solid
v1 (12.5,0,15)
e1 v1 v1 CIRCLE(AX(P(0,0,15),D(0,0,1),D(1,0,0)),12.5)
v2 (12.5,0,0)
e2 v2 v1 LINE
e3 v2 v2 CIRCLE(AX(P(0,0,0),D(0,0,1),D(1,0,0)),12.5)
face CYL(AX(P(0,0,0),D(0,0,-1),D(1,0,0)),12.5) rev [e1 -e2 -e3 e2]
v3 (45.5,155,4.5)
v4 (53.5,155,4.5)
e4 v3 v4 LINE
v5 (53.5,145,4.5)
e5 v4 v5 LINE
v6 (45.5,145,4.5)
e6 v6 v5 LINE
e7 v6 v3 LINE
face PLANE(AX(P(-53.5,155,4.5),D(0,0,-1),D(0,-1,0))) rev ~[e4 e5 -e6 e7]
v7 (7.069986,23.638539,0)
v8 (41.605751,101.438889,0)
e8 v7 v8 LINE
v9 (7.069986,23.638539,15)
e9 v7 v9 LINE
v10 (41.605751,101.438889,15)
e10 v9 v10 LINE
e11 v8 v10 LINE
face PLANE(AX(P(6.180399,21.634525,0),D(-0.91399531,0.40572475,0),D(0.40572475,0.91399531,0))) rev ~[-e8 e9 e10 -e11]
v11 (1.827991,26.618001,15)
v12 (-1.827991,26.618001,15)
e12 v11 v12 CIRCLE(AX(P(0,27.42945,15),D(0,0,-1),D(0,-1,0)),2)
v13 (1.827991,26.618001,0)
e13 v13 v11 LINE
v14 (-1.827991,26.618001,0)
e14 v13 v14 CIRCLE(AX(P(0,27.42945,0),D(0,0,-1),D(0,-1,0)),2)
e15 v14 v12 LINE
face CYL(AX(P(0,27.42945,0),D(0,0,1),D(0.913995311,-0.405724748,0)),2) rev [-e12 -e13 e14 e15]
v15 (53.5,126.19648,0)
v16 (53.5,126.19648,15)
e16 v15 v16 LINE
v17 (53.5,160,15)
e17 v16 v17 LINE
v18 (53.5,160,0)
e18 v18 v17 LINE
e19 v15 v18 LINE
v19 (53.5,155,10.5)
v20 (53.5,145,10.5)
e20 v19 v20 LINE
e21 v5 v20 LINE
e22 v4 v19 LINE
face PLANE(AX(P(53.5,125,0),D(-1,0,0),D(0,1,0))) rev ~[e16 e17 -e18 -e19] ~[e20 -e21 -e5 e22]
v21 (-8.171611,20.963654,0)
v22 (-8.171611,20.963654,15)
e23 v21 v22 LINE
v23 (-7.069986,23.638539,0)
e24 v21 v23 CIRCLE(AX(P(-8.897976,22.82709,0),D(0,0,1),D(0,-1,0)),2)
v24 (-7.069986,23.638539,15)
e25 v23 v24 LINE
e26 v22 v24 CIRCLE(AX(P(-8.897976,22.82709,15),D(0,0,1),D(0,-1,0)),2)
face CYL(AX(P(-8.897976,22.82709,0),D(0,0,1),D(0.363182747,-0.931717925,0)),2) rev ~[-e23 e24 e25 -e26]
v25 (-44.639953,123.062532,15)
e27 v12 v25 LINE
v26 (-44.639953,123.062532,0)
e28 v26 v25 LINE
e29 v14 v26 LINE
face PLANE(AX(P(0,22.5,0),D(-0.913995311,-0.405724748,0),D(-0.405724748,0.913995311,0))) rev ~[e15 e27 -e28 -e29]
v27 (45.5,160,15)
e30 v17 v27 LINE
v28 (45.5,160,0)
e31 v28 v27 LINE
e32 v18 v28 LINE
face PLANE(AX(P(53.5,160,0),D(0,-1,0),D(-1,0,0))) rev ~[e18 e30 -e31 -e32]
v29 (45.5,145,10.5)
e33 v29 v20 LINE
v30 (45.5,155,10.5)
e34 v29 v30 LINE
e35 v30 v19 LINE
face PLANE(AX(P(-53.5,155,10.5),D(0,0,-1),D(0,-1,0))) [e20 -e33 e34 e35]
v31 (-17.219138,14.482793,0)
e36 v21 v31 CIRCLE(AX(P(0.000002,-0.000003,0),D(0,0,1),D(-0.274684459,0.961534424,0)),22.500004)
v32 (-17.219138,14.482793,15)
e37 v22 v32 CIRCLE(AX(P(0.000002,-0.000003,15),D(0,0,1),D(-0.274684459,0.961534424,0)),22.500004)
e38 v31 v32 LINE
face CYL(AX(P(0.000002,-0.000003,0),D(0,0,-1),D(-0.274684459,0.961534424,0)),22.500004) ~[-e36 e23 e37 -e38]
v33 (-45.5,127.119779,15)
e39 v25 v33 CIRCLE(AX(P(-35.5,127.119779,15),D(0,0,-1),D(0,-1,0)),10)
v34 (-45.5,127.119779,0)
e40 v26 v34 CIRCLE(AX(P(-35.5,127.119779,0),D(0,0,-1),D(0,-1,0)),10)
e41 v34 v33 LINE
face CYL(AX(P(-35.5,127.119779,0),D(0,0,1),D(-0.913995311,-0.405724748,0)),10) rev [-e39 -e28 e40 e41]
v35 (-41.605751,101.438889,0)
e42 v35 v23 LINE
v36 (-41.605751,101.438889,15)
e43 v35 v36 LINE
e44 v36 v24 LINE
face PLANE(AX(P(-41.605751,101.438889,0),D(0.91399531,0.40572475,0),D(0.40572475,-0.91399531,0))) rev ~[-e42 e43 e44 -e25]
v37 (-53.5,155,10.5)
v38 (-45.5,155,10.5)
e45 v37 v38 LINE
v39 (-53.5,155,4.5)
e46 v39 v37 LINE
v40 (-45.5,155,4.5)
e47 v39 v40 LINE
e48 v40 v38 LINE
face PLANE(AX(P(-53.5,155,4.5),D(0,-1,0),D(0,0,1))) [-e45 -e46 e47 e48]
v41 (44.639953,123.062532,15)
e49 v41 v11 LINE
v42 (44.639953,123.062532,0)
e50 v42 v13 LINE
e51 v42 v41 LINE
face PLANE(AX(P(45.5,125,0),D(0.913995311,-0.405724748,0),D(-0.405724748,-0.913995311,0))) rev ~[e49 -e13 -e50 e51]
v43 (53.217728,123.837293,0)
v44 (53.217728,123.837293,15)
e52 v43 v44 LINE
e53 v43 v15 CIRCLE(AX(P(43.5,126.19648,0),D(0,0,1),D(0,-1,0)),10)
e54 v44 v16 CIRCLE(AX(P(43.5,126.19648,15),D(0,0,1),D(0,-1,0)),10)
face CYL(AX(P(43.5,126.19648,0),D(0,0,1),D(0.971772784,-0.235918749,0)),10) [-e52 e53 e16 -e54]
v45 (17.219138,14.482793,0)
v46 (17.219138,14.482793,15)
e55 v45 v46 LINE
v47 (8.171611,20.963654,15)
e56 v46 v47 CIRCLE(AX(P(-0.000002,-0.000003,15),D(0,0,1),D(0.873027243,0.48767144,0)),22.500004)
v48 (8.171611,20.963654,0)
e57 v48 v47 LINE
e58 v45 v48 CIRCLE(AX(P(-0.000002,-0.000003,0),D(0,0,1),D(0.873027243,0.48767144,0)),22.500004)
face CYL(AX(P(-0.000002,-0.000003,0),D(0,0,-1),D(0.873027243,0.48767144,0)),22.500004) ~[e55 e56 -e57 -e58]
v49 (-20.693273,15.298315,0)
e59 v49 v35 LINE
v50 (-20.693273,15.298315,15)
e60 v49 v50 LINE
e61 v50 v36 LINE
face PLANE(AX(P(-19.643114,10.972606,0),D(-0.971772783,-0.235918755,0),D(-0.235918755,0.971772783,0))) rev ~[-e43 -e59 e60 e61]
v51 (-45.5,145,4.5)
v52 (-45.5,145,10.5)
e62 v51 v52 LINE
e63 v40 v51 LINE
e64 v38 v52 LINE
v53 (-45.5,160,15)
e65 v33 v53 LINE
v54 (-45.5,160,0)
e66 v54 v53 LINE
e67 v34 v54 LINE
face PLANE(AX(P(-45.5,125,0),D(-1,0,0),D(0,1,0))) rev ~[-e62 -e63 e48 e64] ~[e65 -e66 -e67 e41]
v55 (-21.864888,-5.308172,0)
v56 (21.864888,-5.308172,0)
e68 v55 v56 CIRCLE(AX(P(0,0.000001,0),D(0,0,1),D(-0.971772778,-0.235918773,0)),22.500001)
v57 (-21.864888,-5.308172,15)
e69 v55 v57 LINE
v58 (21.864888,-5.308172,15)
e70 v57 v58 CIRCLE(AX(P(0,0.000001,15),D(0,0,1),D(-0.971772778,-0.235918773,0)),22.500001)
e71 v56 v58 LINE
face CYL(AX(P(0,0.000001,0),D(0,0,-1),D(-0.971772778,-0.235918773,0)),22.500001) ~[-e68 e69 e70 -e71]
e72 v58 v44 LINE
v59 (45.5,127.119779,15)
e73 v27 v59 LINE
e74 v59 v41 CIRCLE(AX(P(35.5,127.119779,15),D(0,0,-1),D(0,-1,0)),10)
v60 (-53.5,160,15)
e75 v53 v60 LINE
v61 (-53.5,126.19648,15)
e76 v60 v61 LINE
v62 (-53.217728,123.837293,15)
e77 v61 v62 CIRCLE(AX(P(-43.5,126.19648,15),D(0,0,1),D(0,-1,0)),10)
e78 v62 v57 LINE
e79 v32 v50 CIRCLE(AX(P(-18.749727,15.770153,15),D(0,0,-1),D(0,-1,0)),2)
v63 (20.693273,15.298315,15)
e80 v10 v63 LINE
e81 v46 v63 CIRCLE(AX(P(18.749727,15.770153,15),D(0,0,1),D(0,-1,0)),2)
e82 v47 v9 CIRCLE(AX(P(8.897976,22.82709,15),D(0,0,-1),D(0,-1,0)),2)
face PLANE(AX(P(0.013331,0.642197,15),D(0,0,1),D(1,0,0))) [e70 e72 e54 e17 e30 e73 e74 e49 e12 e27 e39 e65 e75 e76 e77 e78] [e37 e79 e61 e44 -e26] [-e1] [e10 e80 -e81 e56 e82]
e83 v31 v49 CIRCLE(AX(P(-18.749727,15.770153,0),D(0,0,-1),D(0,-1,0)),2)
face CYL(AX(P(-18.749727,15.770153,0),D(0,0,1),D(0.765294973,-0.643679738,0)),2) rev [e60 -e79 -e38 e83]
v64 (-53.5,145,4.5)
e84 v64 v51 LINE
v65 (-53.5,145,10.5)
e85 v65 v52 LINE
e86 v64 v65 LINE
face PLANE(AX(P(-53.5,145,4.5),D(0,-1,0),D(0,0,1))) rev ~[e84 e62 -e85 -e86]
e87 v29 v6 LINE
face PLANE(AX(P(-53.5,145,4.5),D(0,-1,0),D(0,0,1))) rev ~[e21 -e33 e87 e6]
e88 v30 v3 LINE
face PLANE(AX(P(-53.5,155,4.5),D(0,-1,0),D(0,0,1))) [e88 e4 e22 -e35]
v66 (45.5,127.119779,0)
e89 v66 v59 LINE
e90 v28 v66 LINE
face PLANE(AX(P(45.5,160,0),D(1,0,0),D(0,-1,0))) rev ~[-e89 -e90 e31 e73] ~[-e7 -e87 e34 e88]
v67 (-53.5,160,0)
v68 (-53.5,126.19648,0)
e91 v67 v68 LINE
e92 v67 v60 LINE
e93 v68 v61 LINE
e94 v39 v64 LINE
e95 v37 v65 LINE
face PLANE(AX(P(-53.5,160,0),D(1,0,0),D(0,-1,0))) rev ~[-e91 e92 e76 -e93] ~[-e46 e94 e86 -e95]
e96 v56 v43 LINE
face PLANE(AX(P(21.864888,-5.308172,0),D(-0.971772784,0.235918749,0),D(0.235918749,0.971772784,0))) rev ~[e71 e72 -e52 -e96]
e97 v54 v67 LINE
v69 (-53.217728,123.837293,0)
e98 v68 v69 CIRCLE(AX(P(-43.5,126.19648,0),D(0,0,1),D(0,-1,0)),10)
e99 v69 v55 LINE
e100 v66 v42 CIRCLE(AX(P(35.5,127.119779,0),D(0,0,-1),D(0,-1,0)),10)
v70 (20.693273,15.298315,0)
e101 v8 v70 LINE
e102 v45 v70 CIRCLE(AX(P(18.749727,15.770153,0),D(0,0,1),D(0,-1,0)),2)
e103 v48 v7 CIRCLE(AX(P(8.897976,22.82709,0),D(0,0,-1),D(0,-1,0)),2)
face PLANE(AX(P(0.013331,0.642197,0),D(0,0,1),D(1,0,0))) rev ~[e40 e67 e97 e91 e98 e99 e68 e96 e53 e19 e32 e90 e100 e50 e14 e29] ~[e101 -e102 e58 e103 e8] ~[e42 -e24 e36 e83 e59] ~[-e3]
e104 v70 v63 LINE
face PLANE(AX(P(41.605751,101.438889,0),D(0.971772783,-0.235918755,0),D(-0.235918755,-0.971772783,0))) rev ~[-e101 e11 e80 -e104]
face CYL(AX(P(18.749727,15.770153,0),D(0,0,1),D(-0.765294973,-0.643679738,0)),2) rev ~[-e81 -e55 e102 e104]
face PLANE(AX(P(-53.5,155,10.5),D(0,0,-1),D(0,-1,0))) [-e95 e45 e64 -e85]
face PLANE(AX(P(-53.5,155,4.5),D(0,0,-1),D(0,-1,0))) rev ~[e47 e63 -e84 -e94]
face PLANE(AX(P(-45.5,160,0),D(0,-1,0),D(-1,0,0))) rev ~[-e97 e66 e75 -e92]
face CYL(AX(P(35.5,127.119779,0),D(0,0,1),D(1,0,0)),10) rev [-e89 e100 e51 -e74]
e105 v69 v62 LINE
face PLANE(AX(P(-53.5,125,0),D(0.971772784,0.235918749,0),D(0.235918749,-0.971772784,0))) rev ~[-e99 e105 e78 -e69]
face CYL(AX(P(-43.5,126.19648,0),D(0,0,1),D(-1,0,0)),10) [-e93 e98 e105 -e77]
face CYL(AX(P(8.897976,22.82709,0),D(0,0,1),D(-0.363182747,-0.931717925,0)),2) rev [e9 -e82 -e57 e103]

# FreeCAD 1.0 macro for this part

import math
import FreeCAD as App
import Part
import Sketcher
from FreeCAD import Vector


def edges_at(feature, points):
    """Names of the edges that pass closest to the given points."""
    edges = feature.Shape.Edges
    near = lambda p: min(range(len(edges)), key=lambda i: edges[i].distToShape(Part.Vertex(*p))[0])
    return sorted({f"Edge{near(p) + 1}" for p in points})


def add_polygon(sketch, points):
    """Adds a closed chain of lines whose ends are joined by coincident constraints."""
    first, n = sketch.GeometryCount, len(points)
    for a, b in zip(points, points[1:] + points[:1]):
        sketch.addGeometry(Part.LineSegment(App.Vector(*a, 0), App.Vector(*b, 0)), False)
    for i in range(n):
        sketch.addConstraint(Sketcher.Constraint("Coincident", first + i, 2, first + (i + 1) % n, 1))

doc = App.newDocument("Part")
body = doc.addObject("PartDesign::Body", "Body")

# Sketch on XY plane
sketch1 = body.newObject("Sketcher::SketchObject", "Sketch")
sketch1.AttachmentSupport = (doc.getObject("XY_Plane"), [""])
sketch1.MapMode = "FlatFace"
sketch1.addGeometry(Part.ArcOfCircle(Part.Circle(Vector(0, 0, 0), Vector(0, 0, 1), 23), math.radians(-166), math.radians(-14)), False)
sketch1.addGeometry(Part.LineSegment(Vector(22, -5, 0), Vector(54, 125, 0)), False)
sketch1.addGeometry(Part.LineSegment(Vector(54, 125, 0), Vector(54, 160, 0)), False)
sketch1.addGeometry(Part.LineSegment(Vector(54, 160, 0), Vector(46, 160, 0)), False)
sketch1.addGeometry(Part.LineSegment(Vector(46, 160, 0), Vector(46, 125, 0)), False)
sketch1.addGeometry(Part.LineSegment(Vector(46, 125, 0), Vector(0, 22, 0)), False)
sketch1.addGeometry(Part.LineSegment(Vector(0, 22, 0), Vector(-46, 125, 0)), False)
sketch1.addGeometry(Part.LineSegment(Vector(-46, 125, 0), Vector(-46, 160, 0)), False)
sketch1.addGeometry(Part.LineSegment(Vector(-46, 160, 0), Vector(-54, 160, 0)), False)
sketch1.addGeometry(Part.LineSegment(Vector(-54, 160, 0), Vector(-54, 125, 0)), False)
sketch1.addGeometry(Part.LineSegment(Vector(-54, 125, 0), Vector(-22, -5, 0)), False)
sketch1.addGeometry(Part.ArcOfCircle(Part.Circle(Vector(0, 0, 0), Vector(0, 0, 1), 23), math.radians(106), math.radians(151)), False)
sketch1.addGeometry(Part.LineSegment(Vector(-20, 11, 0), Vector(-42, 101, 0)), False)
sketch1.addGeometry(Part.LineSegment(Vector(-42, 101, 0), Vector(-6, 22, 0)), False)
sketch1.addGeometry(Part.ArcOfCircle(Part.Circle(Vector(0, 0, 0), Vector(0, 0, 1), 23), math.radians(29), math.radians(74)), False)
sketch1.addGeometry(Part.LineSegment(Vector(6, 22, 0), Vector(42, 101, 0)), False)
sketch1.addGeometry(Part.LineSegment(Vector(42, 101, 0), Vector(20, 11, 0)), False)
sketch1.addGeometry(Part.Circle(Vector(0, 0, 0), Vector(0, 0, 1), 12), False)
sketch1.addConstraint(Sketcher.Constraint("Tangent", 0, 2, 1, 1))
sketch1.addConstraint(Sketcher.Constraint("Coincident", 1, 2, 2, 1))
sketch1.addConstraint(Sketcher.Constraint("Coincident", 2, 2, 3, 1))
sketch1.addConstraint(Sketcher.Constraint("Coincident", 3, 2, 4, 1))
sketch1.addConstraint(Sketcher.Constraint("Coincident", 4, 2, 5, 1))
sketch1.addConstraint(Sketcher.Constraint("Coincident", 5, 2, 6, 1))
sketch1.addConstraint(Sketcher.Constraint("Coincident", 6, 2, 7, 1))
sketch1.addConstraint(Sketcher.Constraint("Coincident", 7, 2, 8, 1))
sketch1.addConstraint(Sketcher.Constraint("Coincident", 8, 2, 9, 1))
sketch1.addConstraint(Sketcher.Constraint("Coincident", 9, 2, 10, 1))
sketch1.addConstraint(Sketcher.Constraint("Tangent", 10, 2, 0, 1))
sketch1.addConstraint(Sketcher.Constraint("Coincident", 11, 2, 12, 1))
sketch1.addConstraint(Sketcher.Constraint("Coincident", 12, 2, 13, 1))
sketch1.addConstraint(Sketcher.Constraint("Coincident", 13, 2, 11, 1))
sketch1.addConstraint(Sketcher.Constraint("Coincident", 14, 2, 15, 1))
sketch1.addConstraint(Sketcher.Constraint("Coincident", 15, 2, 16, 1))
sketch1.addConstraint(Sketcher.Constraint("Coincident", 16, 2, 14, 1))
sketch1.addConstraint(Sketcher.Constraint("Vertical", 2))
sketch1.addConstraint(Sketcher.Constraint("Horizontal", 3))
sketch1.addConstraint(Sketcher.Constraint("Vertical", 4))
sketch1.addConstraint(Sketcher.Constraint("Vertical", 7))
sketch1.addConstraint(Sketcher.Constraint("Horizontal", 8))
sketch1.addConstraint(Sketcher.Constraint("Vertical", 9))
sketch1.addConstraint(Sketcher.Constraint("Coincident", 0, 3, -1, 1))
sketch1.addConstraint(Sketcher.Constraint("Coincident", 11, 3, -1, 1))
sketch1.addConstraint(Sketcher.Constraint("Coincident", 14, 3, -1, 1))
sketch1.addConstraint(Sketcher.Constraint("Coincident", 17, 3, -1, 1))
sketch1.addConstraint(Sketcher.Constraint("Equal", 11, 14))
sketch1.addConstraint(Sketcher.Constraint("Symmetric", 4, 2, 6, 2, -2))
sketch1.addConstraint(Sketcher.Constraint("Symmetric", 2, 2, 8, 2, -2))
sketch1.addConstraint(Sketcher.Constraint("Symmetric", 12, 2, 15, 2, -2))
sketch1.addConstraint(Sketcher.Constraint("PointOnObject", 5, 2, -2))
sketch1.addConstraint(Sketcher.Constraint("Parallel", 10, 12))
sketch1.addConstraint(Sketcher.Constraint("Parallel", 6, 13))
sketch1.addConstraint(Sketcher.Constraint("Parallel", 5, 15))
sketch1.addConstraint(Sketcher.Constraint("Parallel", 1, 16))
sketch1.addConstraint(Sketcher.Constraint("Horizontal", 1, 2, 4, 2))
sketch1.addConstraint(Sketcher.Constraint("Horizontal", 6, 2, 9, 2))
sketch1.addConstraint(Sketcher.Constraint("Diameter", 17, 25.0))
sketch1.addConstraint(Sketcher.Constraint("Radius", 0, 22.500001))
sketch1.addConstraint(Sketcher.Constraint("DistanceX", 3, 2, 3, 1, 8.0))
sketch1.addConstraint(Sketcher.Constraint("DistanceY", 2, 1, 2, 2, 35.0))
sketch1.addConstraint(Sketcher.Constraint("DistanceY", -1, 1, 1, 2, 125.0))
sketch1.addConstraint(Sketcher.Constraint("DistanceX", 6, 2, 4, 2, 91.0))
sketch1.addConstraint(Sketcher.Constraint("DistanceY", -1, 1, 5, 2, 22.5))
sketch1.addConstraint(Sketcher.Constraint("Radius", 11, 22.500004))
sketch1.addConstraint(Sketcher.Constraint("DistanceX", 13, 2, -1, 1, 6.180399))
sketch1.addConstraint(Sketcher.Constraint("DistanceX", 12, 2, 15, 2, 83.211502))
pad1 = body.newObject("PartDesign::Pad", "Pad")
pad1.Profile = sketch1
pad1.Length = 15
doc.recompute()

fillet = body.newObject("PartDesign::Fillet", "Fillet")
fillet.Base = (pad1, edges_at(pad1, [
    (-53.5, 125, 7.5),
    (45.5, 125, 7.5),
    (-45.5, 125, 7.5),
    (53.5, 125, 7.5),
]))
fillet.Radius = 10
doc.recompute()

fillet2 = body.newObject("PartDesign::Fillet", "Fillet001")
fillet2.Base = (fillet, edges_at(fillet, [
    (-6.18, 21.635, 7.5),
    (-19.643, 10.973, 7.5),
    (19.643, 10.973, 7.5),
    (6.18, 21.635, 7.5),
    (0, 22.5, 7.5),
]))
fillet2.Radius = 2

# Sketch on YZ plane
sketch2 = body.newObject("Sketcher::SketchObject", "Sketch001")
sketch2.AttachmentSupport = (doc.getObject("YZ_Plane"), [""])
sketch2.MapMode = "FlatFace"
sketch2.AttachmentOffset = App.Placement(Vector(0, 0, -53.5), App.Rotation())
add_polygon(sketch2, [(155, 10), (155, 4), (145, 4), (145, 10)])  # lines 0-3
sketch2.addConstraint(Sketcher.Constraint("Vertical", 0))
sketch2.addConstraint(Sketcher.Constraint("Horizontal", 1))
sketch2.addConstraint(Sketcher.Constraint("Vertical", 2))
sketch2.addConstraint(Sketcher.Constraint("Horizontal", 3))
sketch2.addConstraint(Sketcher.Constraint("DistanceX", 1, 2, 1, 1, 10.0))
sketch2.addConstraint(Sketcher.Constraint("DistanceY", 0, 2, 0, 1, 6.0))
sketch2.addConstraint(Sketcher.Constraint("DistanceX", -1, 1, 0, 2, 155.0))
sketch2.addConstraint(Sketcher.Constraint("DistanceY", -1, 1, 0, 2, 4.5))
pocket1 = body.newObject("PartDesign::Pocket", "Pocket")
pocket1.Profile = sketch2
pocket1.Type = "ThroughAll"
pocket1.Reversed = True

doc.recompute()
